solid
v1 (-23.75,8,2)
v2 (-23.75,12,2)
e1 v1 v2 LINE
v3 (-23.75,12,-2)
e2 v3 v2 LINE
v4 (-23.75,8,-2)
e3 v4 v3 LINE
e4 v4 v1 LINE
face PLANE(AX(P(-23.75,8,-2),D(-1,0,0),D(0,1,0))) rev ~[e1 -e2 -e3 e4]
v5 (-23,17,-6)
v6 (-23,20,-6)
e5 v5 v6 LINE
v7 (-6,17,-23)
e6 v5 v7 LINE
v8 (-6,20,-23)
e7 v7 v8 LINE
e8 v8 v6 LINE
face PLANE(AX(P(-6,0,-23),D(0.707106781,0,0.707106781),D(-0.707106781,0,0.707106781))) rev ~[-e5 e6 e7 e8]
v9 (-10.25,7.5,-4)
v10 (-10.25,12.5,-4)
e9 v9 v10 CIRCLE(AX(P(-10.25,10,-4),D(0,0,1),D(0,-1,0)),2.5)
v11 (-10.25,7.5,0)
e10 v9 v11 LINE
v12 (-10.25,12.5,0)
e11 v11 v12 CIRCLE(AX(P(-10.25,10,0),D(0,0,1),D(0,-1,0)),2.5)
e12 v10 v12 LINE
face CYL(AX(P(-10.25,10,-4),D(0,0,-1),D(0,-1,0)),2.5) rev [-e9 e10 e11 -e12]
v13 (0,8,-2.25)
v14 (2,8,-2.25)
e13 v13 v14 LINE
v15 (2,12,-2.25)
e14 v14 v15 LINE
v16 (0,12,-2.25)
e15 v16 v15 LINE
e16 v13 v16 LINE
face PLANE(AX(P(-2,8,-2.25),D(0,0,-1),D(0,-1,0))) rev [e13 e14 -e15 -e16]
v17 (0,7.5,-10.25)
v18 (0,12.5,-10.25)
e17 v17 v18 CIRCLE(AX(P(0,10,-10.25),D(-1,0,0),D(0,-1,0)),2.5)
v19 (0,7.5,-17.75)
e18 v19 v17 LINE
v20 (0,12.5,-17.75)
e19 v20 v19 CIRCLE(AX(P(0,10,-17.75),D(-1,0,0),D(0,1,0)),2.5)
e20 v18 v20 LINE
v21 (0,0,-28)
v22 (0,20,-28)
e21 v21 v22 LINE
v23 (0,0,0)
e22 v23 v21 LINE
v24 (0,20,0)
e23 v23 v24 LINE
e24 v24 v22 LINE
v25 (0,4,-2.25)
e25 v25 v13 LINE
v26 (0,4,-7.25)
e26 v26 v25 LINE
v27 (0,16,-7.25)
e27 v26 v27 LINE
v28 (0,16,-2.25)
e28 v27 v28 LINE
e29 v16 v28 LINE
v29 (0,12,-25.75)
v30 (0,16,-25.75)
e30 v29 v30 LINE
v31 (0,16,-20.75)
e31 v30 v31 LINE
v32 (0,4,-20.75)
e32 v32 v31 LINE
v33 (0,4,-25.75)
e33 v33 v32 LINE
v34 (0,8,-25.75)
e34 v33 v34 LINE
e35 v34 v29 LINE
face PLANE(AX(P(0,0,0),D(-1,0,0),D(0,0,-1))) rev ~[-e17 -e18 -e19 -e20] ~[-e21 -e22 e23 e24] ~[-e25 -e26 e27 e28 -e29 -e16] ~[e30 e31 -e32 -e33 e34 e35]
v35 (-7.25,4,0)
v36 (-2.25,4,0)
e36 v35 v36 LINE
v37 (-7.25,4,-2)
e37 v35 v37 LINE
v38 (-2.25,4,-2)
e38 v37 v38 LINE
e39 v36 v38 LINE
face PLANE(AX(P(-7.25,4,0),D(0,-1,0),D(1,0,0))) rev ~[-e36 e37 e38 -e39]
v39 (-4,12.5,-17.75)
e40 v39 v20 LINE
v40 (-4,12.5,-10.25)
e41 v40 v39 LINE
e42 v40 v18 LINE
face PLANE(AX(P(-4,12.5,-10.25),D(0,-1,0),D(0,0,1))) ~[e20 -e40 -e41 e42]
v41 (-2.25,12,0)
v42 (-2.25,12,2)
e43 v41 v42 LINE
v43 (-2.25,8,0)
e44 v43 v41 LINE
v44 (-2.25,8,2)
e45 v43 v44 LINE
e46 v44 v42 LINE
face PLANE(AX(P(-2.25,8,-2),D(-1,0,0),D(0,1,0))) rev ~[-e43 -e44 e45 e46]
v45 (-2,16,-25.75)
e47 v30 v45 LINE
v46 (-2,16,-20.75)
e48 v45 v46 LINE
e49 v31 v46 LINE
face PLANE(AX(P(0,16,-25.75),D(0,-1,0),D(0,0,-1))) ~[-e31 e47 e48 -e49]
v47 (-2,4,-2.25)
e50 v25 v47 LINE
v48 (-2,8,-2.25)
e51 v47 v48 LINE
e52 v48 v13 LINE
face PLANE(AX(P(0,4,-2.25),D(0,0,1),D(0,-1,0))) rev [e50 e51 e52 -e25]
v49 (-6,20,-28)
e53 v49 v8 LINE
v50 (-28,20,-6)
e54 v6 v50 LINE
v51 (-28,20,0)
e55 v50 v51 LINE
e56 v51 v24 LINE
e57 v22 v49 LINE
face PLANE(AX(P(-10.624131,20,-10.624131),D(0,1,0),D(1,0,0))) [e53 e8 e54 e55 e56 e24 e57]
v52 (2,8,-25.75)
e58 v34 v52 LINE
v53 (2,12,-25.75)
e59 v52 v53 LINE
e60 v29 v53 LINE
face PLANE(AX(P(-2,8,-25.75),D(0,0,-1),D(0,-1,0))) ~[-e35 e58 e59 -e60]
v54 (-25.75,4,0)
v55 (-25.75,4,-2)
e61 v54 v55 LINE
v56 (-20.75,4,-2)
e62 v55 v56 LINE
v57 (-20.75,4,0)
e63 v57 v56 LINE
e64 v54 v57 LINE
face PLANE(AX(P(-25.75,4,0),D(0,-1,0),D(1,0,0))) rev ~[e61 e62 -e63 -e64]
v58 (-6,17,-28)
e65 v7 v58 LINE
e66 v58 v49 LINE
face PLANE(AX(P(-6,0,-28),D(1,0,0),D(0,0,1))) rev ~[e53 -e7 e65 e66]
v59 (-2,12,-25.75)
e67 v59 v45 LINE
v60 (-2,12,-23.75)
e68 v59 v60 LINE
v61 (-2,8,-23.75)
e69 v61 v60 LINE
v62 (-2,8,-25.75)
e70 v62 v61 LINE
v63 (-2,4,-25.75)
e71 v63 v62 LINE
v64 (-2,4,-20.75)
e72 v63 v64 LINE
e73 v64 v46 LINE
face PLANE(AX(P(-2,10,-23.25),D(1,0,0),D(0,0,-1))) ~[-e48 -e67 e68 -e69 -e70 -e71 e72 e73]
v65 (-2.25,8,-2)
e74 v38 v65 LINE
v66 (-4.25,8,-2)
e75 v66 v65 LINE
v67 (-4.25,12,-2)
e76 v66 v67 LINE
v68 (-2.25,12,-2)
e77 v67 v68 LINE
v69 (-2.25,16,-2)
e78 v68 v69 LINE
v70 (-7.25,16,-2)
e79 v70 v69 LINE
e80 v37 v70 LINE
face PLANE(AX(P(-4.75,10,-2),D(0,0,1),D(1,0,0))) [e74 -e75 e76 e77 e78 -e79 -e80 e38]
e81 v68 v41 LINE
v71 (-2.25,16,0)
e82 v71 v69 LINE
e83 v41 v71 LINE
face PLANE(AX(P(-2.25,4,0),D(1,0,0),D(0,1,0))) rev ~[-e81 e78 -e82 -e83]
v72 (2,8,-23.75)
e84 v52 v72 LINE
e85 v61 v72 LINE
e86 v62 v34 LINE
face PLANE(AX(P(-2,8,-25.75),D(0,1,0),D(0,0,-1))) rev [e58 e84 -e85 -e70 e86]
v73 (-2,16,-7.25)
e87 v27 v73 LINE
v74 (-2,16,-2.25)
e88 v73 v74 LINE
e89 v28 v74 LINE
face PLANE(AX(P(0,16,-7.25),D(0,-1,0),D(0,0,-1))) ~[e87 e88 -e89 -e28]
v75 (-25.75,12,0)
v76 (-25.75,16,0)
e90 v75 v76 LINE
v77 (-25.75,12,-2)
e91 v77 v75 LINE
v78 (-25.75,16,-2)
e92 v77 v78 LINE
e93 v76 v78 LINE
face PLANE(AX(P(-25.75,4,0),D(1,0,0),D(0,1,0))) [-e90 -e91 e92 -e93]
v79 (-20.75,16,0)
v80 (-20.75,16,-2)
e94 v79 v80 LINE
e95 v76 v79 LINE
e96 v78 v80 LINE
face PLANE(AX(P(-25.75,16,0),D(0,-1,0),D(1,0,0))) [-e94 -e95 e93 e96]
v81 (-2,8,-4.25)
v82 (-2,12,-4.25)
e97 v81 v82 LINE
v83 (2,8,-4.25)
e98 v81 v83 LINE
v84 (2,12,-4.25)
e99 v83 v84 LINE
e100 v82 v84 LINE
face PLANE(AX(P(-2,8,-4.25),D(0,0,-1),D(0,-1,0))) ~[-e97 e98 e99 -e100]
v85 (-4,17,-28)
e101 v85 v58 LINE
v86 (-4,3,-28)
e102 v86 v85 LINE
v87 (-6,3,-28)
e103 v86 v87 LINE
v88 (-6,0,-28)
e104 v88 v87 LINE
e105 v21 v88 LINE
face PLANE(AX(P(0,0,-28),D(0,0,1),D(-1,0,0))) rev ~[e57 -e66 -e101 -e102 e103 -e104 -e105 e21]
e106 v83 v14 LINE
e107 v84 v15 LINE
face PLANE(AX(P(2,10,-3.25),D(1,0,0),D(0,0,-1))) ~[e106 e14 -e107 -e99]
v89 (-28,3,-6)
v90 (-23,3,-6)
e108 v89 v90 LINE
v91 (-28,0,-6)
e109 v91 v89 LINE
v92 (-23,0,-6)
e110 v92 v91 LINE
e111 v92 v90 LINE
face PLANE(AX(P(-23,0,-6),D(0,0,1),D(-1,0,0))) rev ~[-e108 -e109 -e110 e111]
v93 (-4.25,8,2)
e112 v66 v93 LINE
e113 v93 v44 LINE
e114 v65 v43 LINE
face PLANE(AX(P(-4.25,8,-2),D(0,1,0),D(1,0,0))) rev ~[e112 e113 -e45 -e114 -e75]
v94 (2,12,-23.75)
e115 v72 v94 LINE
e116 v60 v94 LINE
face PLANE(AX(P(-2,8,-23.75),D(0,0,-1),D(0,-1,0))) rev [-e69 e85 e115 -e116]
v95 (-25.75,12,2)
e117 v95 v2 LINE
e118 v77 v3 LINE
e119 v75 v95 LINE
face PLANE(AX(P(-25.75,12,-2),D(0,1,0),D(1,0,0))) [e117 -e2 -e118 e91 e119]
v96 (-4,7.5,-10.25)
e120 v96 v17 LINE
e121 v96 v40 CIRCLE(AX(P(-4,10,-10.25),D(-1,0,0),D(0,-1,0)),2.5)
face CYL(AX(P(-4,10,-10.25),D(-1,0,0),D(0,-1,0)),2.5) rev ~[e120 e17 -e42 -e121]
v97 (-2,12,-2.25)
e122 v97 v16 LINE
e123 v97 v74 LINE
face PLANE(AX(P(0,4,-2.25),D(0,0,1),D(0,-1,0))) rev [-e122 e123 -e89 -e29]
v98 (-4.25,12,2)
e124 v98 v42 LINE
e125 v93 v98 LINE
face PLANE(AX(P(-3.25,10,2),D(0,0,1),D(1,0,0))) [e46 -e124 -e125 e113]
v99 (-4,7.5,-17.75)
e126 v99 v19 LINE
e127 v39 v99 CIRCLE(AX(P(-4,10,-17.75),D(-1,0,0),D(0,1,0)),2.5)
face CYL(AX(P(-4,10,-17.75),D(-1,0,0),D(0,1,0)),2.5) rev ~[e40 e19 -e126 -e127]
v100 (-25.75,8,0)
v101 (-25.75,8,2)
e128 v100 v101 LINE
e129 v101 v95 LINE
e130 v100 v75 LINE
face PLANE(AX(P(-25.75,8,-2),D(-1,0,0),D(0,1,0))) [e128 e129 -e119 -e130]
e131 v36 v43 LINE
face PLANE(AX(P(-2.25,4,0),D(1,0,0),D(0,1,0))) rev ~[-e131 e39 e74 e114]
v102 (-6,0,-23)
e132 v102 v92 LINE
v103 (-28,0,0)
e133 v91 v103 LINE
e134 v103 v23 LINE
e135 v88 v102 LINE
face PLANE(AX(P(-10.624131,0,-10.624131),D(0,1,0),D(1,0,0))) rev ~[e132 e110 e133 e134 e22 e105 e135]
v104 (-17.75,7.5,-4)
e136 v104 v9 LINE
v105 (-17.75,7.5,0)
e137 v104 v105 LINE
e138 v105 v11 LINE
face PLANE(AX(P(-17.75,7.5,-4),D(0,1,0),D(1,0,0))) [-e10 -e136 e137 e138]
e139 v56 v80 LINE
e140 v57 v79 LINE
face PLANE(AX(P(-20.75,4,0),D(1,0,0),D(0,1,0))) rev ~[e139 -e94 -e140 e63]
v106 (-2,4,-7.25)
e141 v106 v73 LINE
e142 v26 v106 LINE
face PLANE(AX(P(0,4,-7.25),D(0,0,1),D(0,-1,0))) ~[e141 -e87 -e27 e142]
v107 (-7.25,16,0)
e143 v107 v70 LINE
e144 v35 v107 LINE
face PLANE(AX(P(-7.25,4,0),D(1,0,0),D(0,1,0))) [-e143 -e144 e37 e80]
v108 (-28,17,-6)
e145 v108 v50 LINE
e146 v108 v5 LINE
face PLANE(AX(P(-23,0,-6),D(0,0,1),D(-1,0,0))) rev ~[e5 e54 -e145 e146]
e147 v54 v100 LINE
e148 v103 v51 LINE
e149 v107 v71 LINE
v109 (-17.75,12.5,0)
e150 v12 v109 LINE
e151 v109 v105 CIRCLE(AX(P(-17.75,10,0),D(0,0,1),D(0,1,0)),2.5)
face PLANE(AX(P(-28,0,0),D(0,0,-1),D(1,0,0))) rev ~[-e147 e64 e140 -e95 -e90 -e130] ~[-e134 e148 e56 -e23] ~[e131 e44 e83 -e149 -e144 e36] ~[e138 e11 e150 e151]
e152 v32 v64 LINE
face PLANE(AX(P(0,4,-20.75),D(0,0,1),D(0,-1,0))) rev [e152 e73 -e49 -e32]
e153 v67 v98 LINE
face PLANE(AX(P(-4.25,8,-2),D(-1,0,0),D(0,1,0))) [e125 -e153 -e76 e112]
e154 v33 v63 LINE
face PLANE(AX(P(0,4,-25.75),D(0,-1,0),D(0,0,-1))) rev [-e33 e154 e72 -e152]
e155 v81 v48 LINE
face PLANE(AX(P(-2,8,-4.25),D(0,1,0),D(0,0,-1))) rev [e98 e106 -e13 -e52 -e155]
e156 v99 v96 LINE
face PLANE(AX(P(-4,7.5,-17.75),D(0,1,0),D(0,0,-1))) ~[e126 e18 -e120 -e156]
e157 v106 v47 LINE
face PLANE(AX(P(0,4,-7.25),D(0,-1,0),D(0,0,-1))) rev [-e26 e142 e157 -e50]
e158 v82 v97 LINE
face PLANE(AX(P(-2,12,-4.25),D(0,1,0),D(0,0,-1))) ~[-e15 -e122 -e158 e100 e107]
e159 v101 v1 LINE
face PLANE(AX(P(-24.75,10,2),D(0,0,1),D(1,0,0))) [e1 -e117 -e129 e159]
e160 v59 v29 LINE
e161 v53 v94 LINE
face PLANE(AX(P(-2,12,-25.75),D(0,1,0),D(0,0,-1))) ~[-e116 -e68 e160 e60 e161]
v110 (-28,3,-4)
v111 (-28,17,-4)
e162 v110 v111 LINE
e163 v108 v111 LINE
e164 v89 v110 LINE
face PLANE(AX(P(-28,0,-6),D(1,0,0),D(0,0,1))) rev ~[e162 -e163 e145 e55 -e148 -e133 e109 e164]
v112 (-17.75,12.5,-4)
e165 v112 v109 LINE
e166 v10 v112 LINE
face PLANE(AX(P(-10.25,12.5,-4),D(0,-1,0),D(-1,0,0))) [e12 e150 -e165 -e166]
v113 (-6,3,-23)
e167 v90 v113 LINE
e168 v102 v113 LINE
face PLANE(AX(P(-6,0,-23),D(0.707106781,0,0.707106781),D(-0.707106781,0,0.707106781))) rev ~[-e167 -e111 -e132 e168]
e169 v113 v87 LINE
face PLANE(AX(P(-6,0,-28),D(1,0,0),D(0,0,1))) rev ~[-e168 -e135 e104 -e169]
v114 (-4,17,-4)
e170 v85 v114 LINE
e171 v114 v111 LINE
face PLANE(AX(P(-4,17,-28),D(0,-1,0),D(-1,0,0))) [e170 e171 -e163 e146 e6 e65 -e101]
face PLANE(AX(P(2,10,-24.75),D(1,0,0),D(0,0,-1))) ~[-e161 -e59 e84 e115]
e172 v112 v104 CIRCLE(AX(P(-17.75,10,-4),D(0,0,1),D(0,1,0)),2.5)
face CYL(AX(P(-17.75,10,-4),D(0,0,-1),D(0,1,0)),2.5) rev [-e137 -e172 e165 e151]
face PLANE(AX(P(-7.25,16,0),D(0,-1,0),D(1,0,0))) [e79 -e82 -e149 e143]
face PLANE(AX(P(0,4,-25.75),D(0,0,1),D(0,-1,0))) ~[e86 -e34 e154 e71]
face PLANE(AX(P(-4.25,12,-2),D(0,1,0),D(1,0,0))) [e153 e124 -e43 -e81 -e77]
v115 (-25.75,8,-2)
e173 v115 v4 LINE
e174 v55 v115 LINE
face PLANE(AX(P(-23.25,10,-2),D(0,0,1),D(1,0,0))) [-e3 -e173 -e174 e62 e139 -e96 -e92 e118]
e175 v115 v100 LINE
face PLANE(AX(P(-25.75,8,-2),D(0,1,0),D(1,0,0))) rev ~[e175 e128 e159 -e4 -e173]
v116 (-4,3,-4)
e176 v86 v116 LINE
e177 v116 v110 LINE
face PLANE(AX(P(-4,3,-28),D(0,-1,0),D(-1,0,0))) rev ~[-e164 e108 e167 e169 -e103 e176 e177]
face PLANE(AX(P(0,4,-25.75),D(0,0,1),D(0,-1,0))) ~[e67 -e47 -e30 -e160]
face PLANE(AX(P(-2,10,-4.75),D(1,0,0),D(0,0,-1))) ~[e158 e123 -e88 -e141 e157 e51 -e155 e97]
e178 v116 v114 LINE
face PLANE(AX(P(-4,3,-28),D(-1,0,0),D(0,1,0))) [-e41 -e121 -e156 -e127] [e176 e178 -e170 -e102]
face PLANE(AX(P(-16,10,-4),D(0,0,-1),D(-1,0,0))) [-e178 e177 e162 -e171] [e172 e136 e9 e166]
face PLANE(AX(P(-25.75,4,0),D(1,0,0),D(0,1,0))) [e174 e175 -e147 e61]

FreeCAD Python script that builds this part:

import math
import FreeCAD as App
import Part
import Sketcher

V = App.Vector
Q = App.Units.Quantity


def add_polygon(sketch, points):
    """Adds a closed chain of lines whose ends are joined by coincident constraints."""
    first, n = sketch.GeometryCount, len(points)
    for a, b in zip(points, points[1:] + points[:1]):
        sketch.addGeometry(Part.LineSegment(App.Vector(*a, 0), App.Vector(*b, 0)), False)
    for i in range(n):
        sketch.addConstraint(Sketcher.Constraint("Coincident", first + i, 2, first + (i + 1) % n, 1))

doc = App.newDocument("Part")
body = doc.addObject("PartDesign::Body", "Body")

# Sketch on XZ plane
sketch1 = body.newObject("Sketcher::SketchObject", "Sketch")
sketch1.AttachmentSupport = (doc.getObject("XZ_Plane"), [""])
sketch1.MapMode = "FlatFace"
add_polygon(sketch1, [(-28, 0), (0, 0), (0, -28), (-6, -28), (-6, -23), (-23, -6), (-28, -6)])  # lines 0-6
sketch1.addConstraint(Sketcher.Constraint("Horizontal", 0))
sketch1.addConstraint(Sketcher.Constraint("Vertical", 1))
sketch1.addConstraint(Sketcher.Constraint("Horizontal", 2))
sketch1.addConstraint(Sketcher.Constraint("Vertical", 3))
sketch1.addConstraint(Sketcher.Constraint("Horizontal", 5))
sketch1.addConstraint(Sketcher.Constraint("Vertical", 6))
sketch1.addConstraint(Sketcher.Constraint("Coincident", 0, 2, -1, 1))
sketch1.addConstraint(Sketcher.Constraint("Equal", 0, 1))
sketch1.addConstraint(Sketcher.Constraint("Equal", 5, 3))
sketch1.addConstraint(Sketcher.Constraint("Equal", 2, 6))
sketch1.addConstraint(Sketcher.Constraint("DistanceX", 0, 1, 0, 2, Q("28 mm")))
sketch1.addConstraint(Sketcher.Constraint("DistanceX", 2, 2, 2, 1, Q("6 mm")))
sketch1.addConstraint(Sketcher.Constraint("DistanceX", 5, 2, 5, 1, Q("5 mm")))
pad1 = body.newObject("PartDesign::Pad", "Pad")
pad1.Profile = sketch1
pad1.Length = 20
pad1.Reversed = True

# Sketch on XY plane
sketch2 = body.newObject("Sketcher::SketchObject", "Sketch001")
sketch2.AttachmentSupport = (doc.getObject("XY_Plane"), [""])
sketch2.MapMode = "FlatFace"
sketch2.AttachmentOffset = App.Placement(V(0, 0, -28), App.Rotation())
add_polygon(sketch2, [(-4, 17), (-4, 3), (-28, 3), (-28, 17)])  # lines 0-3
sketch2.addConstraint(Sketcher.Constraint("Vertical", 0))
sketch2.addConstraint(Sketcher.Constraint("Horizontal", 1))
sketch2.addConstraint(Sketcher.Constraint("Vertical", 2))
sketch2.addConstraint(Sketcher.Constraint("Horizontal", 3))
sketch2.addConstraint(Sketcher.Constraint("DistanceX", 1, 2, 1, 1, Q("24 mm")))
sketch2.addConstraint(Sketcher.Constraint("DistanceY", 0, 2, 0, 1, Q("14 mm")))
sketch2.addConstraint(Sketcher.Constraint("DistanceX", 0, 2, -1, 1, Q("4 mm")))
sketch2.addConstraint(Sketcher.Constraint("DistanceY", -1, 1, 0, 2, Q("3 mm")))
pocket1 = body.newObject("PartDesign::Pocket", "Pocket")
pocket1.Profile = sketch2
pocket1.Length = 24
pocket1.Reversed = True

# Sketch on XY plane
sketch3 = body.newObject("Sketcher::SketchObject", "Sketch002")
sketch3.AttachmentSupport = (doc.getObject("XY_Plane"), [""])
sketch3.MapMode = "FlatFace"
add_polygon(sketch3, [(-25.75, 16), (-25.75, 4), (-20.75, 4), (-20.75, 16)])  # lines 0-3
add_polygon(sketch3, [(-7.25, 16), (-7.25, 4), (-2.25, 4), (-2.25, 16)])  # lines 4-7
sketch3.addConstraint(Sketcher.Constraint("Vertical", 0))
sketch3.addConstraint(Sketcher.Constraint("Horizontal", 1))
sketch3.addConstraint(Sketcher.Constraint("Vertical", 2))
sketch3.addConstraint(Sketcher.Constraint("Horizontal", 3))
sketch3.addConstraint(Sketcher.Constraint("Vertical", 4))
sketch3.addConstraint(Sketcher.Constraint("Horizontal", 5))
sketch3.addConstraint(Sketcher.Constraint("Vertical", 6))
sketch3.addConstraint(Sketcher.Constraint("Horizontal", 7))
sketch3.addConstraint(Sketcher.Constraint("Horizontal", 1, 2, 4, 2))
sketch3.addConstraint(Sketcher.Constraint("Horizontal", 3, 2, 6, 2))
sketch3.addConstraint(Sketcher.Constraint("Equal", 3, 5))
sketch3.addConstraint(Sketcher.Constraint("DistanceX", 1, 1, 1, 2, Q("5 mm")))
sketch3.addConstraint(Sketcher.Constraint("DistanceY", 0, 2, 0, 1, Q("12 mm")))
sketch3.addConstraint(Sketcher.Constraint("DistanceY", -1, 1, 0, 2, Q("4 mm")))
sketch3.addConstraint(Sketcher.Constraint("DistanceX", 1, 2, 4, 2, Q("13.5 mm")))
sketch3.addConstraint(Sketcher.Constraint("DistanceX", 0, 2, -1, 1, Q("25.75 mm")))
pocket2 = body.newObject("PartDesign::Pocket", "Pocket001")
pocket2.Profile = sketch3
pocket2.Length = 2

# Sketch on XY plane
sketch4 = body.newObject("Sketcher::SketchObject", "Sketch003")
sketch4.AttachmentSupport = (doc.getObject("XY_Plane"), [""])
sketch4.MapMode = "FlatFace"
sketch4.AttachmentOffset = App.Placement(V(0, 0, -2), App.Rotation())
add_polygon(sketch4, [(-25.75, 12), (-25.75, 8), (-23.75, 8), (-23.75, 12)])  # lines 0-3
add_polygon(sketch4, [(-4.25, 12), (-4.25, 8), (-2.25, 8), (-2.25, 12)])  # lines 4-7
sketch4.addConstraint(Sketcher.Constraint("Vertical", 0))
sketch4.addConstraint(Sketcher.Constraint("Horizontal", 1))
sketch4.addConstraint(Sketcher.Constraint("Vertical", 2))
sketch4.addConstraint(Sketcher.Constraint("Horizontal", 3))
sketch4.addConstraint(Sketcher.Constraint("Vertical", 4))
sketch4.addConstraint(Sketcher.Constraint("Horizontal", 5))
sketch4.addConstraint(Sketcher.Constraint("Vertical", 6))
sketch4.addConstraint(Sketcher.Constraint("Horizontal", 7))
sketch4.addConstraint(Sketcher.Constraint("Horizontal", 1, 2, 4, 2))
sketch4.addConstraint(Sketcher.Constraint("Horizontal", 3, 2, 6, 2))
sketch4.addConstraint(Sketcher.Constraint("Equal", 3, 5))
sketch4.addConstraint(Sketcher.Constraint("DistanceX", 1, 1, 1, 2, Q("2 mm")))
sketch4.addConstraint(Sketcher.Constraint("DistanceY", 0, 2, 0, 1, Q("4 mm")))
sketch4.addConstraint(Sketcher.Constraint("DistanceY", -1, 1, 0, 2, Q("8 mm")))
sketch4.addConstraint(Sketcher.Constraint("DistanceX", 1, 2, 4, 2, Q("19.5 mm")))
sketch4.addConstraint(Sketcher.Constraint("DistanceX", 0, 2, -1, 1, Q("25.75 mm")))
pad2 = body.newObject("PartDesign::Pad", "Pad001")
pad2.Profile = sketch4
pad2.Length = 4
doc.recompute()

datumplane = body.newObject("PartDesign::Plane", "DatumPlane")
datumplane.Placement = App.Placement(V(0, 0, 0), App.Rotation(V(-0.707106781, 0, -0.707106781), V(0, -1, 0), V(-0.707106781, 0, 0.707106781), "ZXY"))
mirrored = body.newObject("PartDesign::Mirrored", "Mirrored")
mirrored.Originals = [pocket2, pad2]
mirrored.MirrorPlane = (datumplane, [""])
body.Tip = mirrored

# Sketch on XY plane
sketch5 = body.newObject("Sketcher::SketchObject", "Sketch004")
sketch5.AttachmentSupport = (doc.getObject("XY_Plane"), [""])
sketch5.MapMode = "FlatFace"
sketch5.AttachmentOffset = App.Placement(V(0, 0, -4), App.Rotation())
sketch5.addGeometry(Part.LineSegment(V(-17.75, 12.5, 0), V(-10.25, 12.5, 0)), False)
sketch5.addGeometry(Part.ArcOfCircle(Part.Circle(V(-10.25, 10, 0), V(0, 0, 1), 2.5), math.radians(-90), math.radians(90)), False)
sketch5.addGeometry(Part.LineSegment(V(-10.25, 7.5, 0), V(-17.75, 7.5, 0)), False)
sketch5.addGeometry(Part.ArcOfCircle(Part.Circle(V(-17.75, 10, 0), V(0, 0, 1), 2.5), math.radians(90), math.radians(270)), False)
sketch5.addConstraint(Sketcher.Constraint("Tangent", 0, 2, 1, 2))
sketch5.addConstraint(Sketcher.Constraint("Tangent", 1, 1, 2, 1))
sketch5.addConstraint(Sketcher.Constraint("Tangent", 2, 2, 3, 2))
sketch5.addConstraint(Sketcher.Constraint("Tangent", 3, 1, 0, 1))
sketch5.addConstraint(Sketcher.Constraint("Horizontal", 0))
sketch5.addConstraint(Sketcher.Constraint("Horizontal", 2))
sketch5.addConstraint(Sketcher.Constraint("Radius", 1, Q("2.5 mm")))
sketch5.addConstraint(Sketcher.Constraint("DistanceX", 0, 1, 0, 2, Q("7.5 mm")))
sketch5.addConstraint(Sketcher.Constraint("DistanceY", -1, 1, 1, 3, Q("10 mm")))
sketch5.addConstraint(Sketcher.Constraint("DistanceX", 1, 3, -1, 1, Q("10.25 mm")))
pocket3 = body.newObject("PartDesign::Pocket", "Pocket002")
pocket3.Profile = sketch5
pocket3.Length = 4
pocket3.Reversed = True
doc.recompute()

datumplane2 = body.newObject("PartDesign::Plane", "DatumPlane001")
datumplane2.Placement = App.Placement(V(0, 0, 0), App.Rotation(V(-0.707106781, 0, -0.707106781), V(0, -1, 0), V(-0.707106781, 0, 0.707106781), "ZXY"))
mirrored2 = body.newObject("PartDesign::Mirrored", "Mirrored001")
mirrored2.Originals = [pocket3]
mirrored2.MirrorPlane = (datumplane2, [""])
body.Tip = mirrored2

doc.recompute()
